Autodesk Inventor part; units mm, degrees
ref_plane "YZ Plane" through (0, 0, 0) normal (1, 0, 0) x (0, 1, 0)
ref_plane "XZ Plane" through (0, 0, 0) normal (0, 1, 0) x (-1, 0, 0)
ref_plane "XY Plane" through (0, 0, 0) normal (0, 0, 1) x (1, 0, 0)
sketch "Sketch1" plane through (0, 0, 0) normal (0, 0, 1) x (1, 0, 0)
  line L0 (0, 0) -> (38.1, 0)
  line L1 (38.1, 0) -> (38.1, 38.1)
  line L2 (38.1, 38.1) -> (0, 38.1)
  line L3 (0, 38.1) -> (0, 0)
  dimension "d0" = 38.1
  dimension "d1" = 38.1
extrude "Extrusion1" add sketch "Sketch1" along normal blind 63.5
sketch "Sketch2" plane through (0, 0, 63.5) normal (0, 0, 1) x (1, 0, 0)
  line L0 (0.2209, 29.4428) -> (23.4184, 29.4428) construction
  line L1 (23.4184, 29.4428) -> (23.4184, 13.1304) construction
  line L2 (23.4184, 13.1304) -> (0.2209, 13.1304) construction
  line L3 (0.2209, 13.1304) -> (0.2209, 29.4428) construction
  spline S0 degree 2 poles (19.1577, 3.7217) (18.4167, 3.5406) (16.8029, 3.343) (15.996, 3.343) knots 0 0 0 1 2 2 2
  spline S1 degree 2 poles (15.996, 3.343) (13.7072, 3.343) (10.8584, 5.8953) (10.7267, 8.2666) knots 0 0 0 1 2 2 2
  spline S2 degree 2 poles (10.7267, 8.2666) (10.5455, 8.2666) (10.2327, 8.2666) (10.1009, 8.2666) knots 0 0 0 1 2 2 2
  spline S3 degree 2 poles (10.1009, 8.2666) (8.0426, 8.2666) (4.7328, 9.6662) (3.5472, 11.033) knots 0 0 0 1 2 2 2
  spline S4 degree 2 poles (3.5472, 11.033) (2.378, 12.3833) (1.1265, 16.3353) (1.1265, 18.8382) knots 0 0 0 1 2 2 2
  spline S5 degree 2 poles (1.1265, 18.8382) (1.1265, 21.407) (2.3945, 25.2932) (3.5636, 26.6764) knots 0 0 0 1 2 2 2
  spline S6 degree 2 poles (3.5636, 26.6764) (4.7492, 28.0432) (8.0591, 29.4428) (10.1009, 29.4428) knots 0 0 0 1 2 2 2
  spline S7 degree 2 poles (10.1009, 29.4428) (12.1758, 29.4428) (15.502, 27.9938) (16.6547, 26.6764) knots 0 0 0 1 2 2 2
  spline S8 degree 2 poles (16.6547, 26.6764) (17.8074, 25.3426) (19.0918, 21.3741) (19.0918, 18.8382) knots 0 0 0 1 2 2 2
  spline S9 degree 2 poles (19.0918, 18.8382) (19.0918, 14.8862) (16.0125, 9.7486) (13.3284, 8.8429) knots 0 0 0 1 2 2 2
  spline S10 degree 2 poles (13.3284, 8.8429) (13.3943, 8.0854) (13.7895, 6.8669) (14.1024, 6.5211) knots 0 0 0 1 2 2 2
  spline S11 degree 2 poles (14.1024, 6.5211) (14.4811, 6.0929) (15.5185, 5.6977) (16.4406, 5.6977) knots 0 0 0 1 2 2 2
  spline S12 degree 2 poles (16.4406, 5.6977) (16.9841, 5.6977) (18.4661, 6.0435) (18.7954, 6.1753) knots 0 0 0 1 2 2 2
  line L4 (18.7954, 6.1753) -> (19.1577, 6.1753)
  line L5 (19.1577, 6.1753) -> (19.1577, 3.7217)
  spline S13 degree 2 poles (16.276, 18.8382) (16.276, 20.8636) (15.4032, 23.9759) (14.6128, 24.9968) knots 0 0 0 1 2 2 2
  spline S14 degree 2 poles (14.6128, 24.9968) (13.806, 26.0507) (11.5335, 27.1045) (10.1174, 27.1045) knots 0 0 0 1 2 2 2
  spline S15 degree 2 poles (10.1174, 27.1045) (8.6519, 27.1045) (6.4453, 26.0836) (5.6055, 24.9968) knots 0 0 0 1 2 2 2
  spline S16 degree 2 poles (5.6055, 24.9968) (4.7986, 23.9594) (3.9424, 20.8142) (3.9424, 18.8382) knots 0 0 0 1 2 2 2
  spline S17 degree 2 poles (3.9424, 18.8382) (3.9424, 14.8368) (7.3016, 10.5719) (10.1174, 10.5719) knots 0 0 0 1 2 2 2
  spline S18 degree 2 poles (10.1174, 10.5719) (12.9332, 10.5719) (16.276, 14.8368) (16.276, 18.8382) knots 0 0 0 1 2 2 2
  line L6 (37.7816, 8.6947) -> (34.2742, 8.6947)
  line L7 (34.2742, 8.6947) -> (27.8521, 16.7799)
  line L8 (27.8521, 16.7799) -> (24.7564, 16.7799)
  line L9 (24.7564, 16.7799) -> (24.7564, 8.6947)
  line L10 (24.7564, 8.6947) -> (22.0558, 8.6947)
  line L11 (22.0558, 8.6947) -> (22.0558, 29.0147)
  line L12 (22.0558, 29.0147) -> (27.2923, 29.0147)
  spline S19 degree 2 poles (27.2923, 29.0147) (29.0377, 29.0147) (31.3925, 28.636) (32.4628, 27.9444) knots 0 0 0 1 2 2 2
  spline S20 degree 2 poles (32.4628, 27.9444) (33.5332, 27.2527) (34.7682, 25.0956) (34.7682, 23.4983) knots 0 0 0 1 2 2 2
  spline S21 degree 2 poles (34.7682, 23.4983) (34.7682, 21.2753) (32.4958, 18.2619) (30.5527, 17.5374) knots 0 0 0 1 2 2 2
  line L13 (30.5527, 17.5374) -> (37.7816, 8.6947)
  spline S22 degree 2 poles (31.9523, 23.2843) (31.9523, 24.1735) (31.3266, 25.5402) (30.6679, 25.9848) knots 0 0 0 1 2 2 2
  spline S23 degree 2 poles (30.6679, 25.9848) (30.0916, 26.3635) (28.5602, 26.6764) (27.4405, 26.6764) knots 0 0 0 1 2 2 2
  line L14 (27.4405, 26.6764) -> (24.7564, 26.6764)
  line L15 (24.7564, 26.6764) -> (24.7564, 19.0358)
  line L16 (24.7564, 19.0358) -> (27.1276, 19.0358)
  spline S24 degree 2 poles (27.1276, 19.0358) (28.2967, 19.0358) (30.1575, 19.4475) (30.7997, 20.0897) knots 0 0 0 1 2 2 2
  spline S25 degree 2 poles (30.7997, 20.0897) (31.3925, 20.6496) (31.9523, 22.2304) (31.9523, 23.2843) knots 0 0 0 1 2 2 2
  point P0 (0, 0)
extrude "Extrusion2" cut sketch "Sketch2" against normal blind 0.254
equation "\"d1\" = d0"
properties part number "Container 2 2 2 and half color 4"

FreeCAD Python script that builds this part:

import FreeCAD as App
import Part
import Sketcher
Q = App.Units.Quantity


def add_polygon(sketch, points):
    """Adds a closed chain of lines whose ends are joined by coincident constraints."""
    first, n = sketch.GeometryCount, len(points)
    for a, b in zip(points, points[1:] + points[:1]):
        sketch.addGeometry(Part.LineSegment(App.Vector(*a, 0), App.Vector(*b, 0)), False)
    for i in range(n):
        sketch.addConstraint(Sketcher.Constraint("Coincident", first + i, 2, first + (i + 1) % n, 1))

doc = App.newDocument("Part")
params = doc.addObject("Spreadsheet::Sheet", "Params")
for row, (alias, value) in enumerate([
    ("sketch1_width", "1.5 in"),
    ("pad1_length", "2.5 in"),
    ("sketch2_height", "0.8 in"),
    ("pocket1_length", "0.01 in"),
], start=1):
    params.set(f"A{row}", alias)
    params.set(f"B{row}", "=" + value)
    params.setAlias(f"B{row}", alias)

body = doc.addObject("PartDesign::Body", "Body")

# Sketch on XY plane
sketch1 = doc.addObject("Sketcher::SketchObject", "Sketch")
body.addObject(sketch1)
sketch1.AttachmentSupport = (doc.XY_Plane, [""])
sketch1.MapMode = "FlatFace"
add_polygon(sketch1, [(0, 38.1), (0, 0), (38.1, 0), (38.1, 38.1)])  # lines 0-3
sketch1.addConstraint([
    Sketcher.Constraint("Vertical", 0),
    Sketcher.Constraint("Horizontal", 1),
    Sketcher.Constraint("Vertical", 2),
    Sketcher.Constraint("Horizontal", 3),
    Sketcher.Constraint("Coincident", 0, 2, -1, 1),
    Sketcher.Constraint("Equal", 3, 0),
    Sketcher.Constraint("DistanceX", 1, 1, 1, 2, Q("1.5 in")),
])
sketch1.setExpression("Constraints[10]", "Params.sketch1_width")
pad1 = doc.addObject("PartDesign::Pad", "Pad")
body.addObject(pad1)
pad1.Profile = sketch1
pad1.setExpression("Length", "Params.pad1_length")

# Sketch on XY plane
sketch2 = doc.addObject("Sketcher::SketchObject", "Sketch001")
body.addObject(sketch2)
sketch2.AttachmentSupport = (doc.XY_Plane, [""])
sketch2.MapMode = "FlatFace"
sketch2.AttachmentOffset = App.Placement(App.Vector(0, 0, 2.5 * 25.4), App.Rotation())
sketch2.addGeometry([
    Part.BSplineCurve([App.Vector(19.1577, 3.7217, 0), App.Vector(18.4167, 3.5406, 0), App.Vector(16.8029, 3.343, 0), App.Vector(15.996, 3.343, 0)], [3, 1, 3], [0, 1, 2], False, 2, [1, 1, 1, 1], False),  # 0
    Part.LineSegment(App.Vector(19.1577, 3.7217, 0), App.Vector(19.1577, 6.1753, 0)),  # 1
    Part.LineSegment(App.Vector(19.1577, 6.1753, 0), App.Vector(18.7954, 6.1753, 0)),  # 2
    Part.BSplineCurve([App.Vector(16.4406, 5.6977, 0), App.Vector(16.9841, 5.6977, 0), App.Vector(18.4661, 6.0435, 0), App.Vector(18.7954, 6.1753, 0)], [3, 1, 3], [0, 1, 2], False, 2, [1, 1, 1, 1], False),  # 3
    Part.BSplineCurve([App.Vector(14.1024, 6.5211, 0), App.Vector(14.4811, 6.0929, 0), App.Vector(15.5185, 5.6977, 0), App.Vector(16.4406, 5.6977, 0)], [3, 1, 3], [0, 1, 2], False, 2, [1, 1, 1, 1], False),  # 4
    Part.BSplineCurve([App.Vector(13.3284, 8.8429, 0), App.Vector(13.3943, 8.0854, 0), App.Vector(13.7895, 6.8669, 0), App.Vector(14.1024, 6.5211, 0)], [3, 1, 3], [0, 1, 2], False, 2, [1, 1, 1, 1], False),  # 5
    Part.BSplineCurve([App.Vector(19.0918, 18.8382, 0), App.Vector(19.0918, 14.8862, 0), App.Vector(16.0125, 9.7486, 0), App.Vector(13.3284, 8.8429, 0)], [3, 1, 3], [0, 1, 2], False, 2, [1, 1, 1, 1], False),  # 6
    Part.BSplineCurve([App.Vector(16.6547, 26.6764, 0), App.Vector(17.8074, 25.3426, 0), App.Vector(19.0918, 21.3741, 0), App.Vector(19.0918, 18.8382, 0)], [3, 1, 3], [0, 1, 2], False, 2, [1, 1, 1, 1], False),  # 7
    Part.BSplineCurve([App.Vector(10.1009, 29.4428, 0), App.Vector(12.1758, 29.4428, 0), App.Vector(15.502, 27.9938, 0), App.Vector(16.6547, 26.6764, 0)], [3, 1, 3], [0, 1, 2], False, 2, [1, 1, 1, 1], False),  # 8
    Part.BSplineCurve([App.Vector(3.5636, 26.6764, 0), App.Vector(4.7492, 28.0432, 0), App.Vector(8.0591, 29.4428, 0), App.Vector(10.1009, 29.4428, 0)], [3, 1, 3], [0, 1, 2], False, 2, [1, 1, 1, 1], False),  # 9
    Part.BSplineCurve([App.Vector(1.1265, 18.8382, 0), App.Vector(1.1265, 21.407, 0), App.Vector(2.3945, 25.2932, 0), App.Vector(3.5636, 26.6764, 0)], [3, 1, 3], [0, 1, 2], False, 2, [1, 1, 1, 1], False),  # 10
    Part.BSplineCurve([App.Vector(3.5472, 11.033, 0), App.Vector(2.378, 12.3833, 0), App.Vector(1.1265, 16.3353, 0), App.Vector(1.1265, 18.8382, 0)], [3, 1, 3], [0, 1, 2], False, 2, [1, 1, 1, 1], False),  # 11
    Part.BSplineCurve([App.Vector(10.1009, 8.2666, 0), App.Vector(8.0426, 8.2666, 0), App.Vector(4.7328, 9.6662, 0), App.Vector(3.5472, 11.033, 0)], [3, 1, 3], [0, 1, 2], False, 2, [1, 1, 1, 1], False),  # 12
    Part.BSplineCurve([App.Vector(10.7267, 8.2666, 0), App.Vector(10.5455, 8.2666, 0), App.Vector(10.2327, 8.2666, 0), App.Vector(10.1009, 8.2666, 0)], [3, 1, 3], [0, 1, 2], False, 2, [1, 1, 1, 1], False),  # 13
    Part.BSplineCurve([App.Vector(15.996, 3.343, 0), App.Vector(13.7072, 3.343, 0), App.Vector(10.8584, 5.8953, 0), App.Vector(10.7267, 8.2666, 0)], [3, 1, 3], [0, 1, 2], False, 2, [1, 1, 1, 1], False),  # 14
    Part.BSplineCurve([App.Vector(16.276, 18.8382, 0), App.Vector(16.276, 20.8636, 0), App.Vector(15.4032, 23.9759, 0), App.Vector(14.6128, 24.9968, 0)], [3, 1, 3], [0, 1, 2], False, 2, [1, 1, 1, 1], False),  # 15
    Part.BSplineCurve([App.Vector(10.1174, 10.5719, 0), App.Vector(12.9332, 10.5719, 0), App.Vector(16.276, 14.8368, 0), App.Vector(16.276, 18.8382, 0)], [3, 1, 3], [0, 1, 2], False, 2, [1, 1, 1, 1], False),  # 16
    Part.BSplineCurve([App.Vector(3.9424, 18.8382, 0), App.Vector(3.9424, 14.8368, 0), App.Vector(7.3016, 10.5719, 0), App.Vector(10.1174, 10.5719, 0)], [3, 1, 3], [0, 1, 2], False, 2, [1, 1, 1, 1], False),  # 17
    Part.BSplineCurve([App.Vector(5.6055, 24.9968, 0), App.Vector(4.7986, 23.9594, 0), App.Vector(3.9424, 20.8142, 0), App.Vector(3.9424, 18.8382, 0)], [3, 1, 3], [0, 1, 2], False, 2, [1, 1, 1, 1], False),  # 18
    Part.BSplineCurve([App.Vector(10.1174, 27.1045, 0), App.Vector(8.6519, 27.1045, 0), App.Vector(6.4453, 26.0836, 0), App.Vector(5.6055, 24.9968, 0)], [3, 1, 3], [0, 1, 2], False, 2, [1, 1, 1, 1], False),  # 19
    Part.BSplineCurve([App.Vector(14.6128, 24.9968, 0), App.Vector(13.806, 26.0507, 0), App.Vector(11.5335, 27.1045, 0), App.Vector(10.1174, 27.1045, 0)], [3, 1, 3], [0, 1, 2], False, 2, [1, 1, 1, 1], False),  # 20
    Part.LineSegment(App.Vector(34.2742, 8.6947, 0), App.Vector(37.7816, 8.6947, 0)),  # 21
    Part.LineSegment(App.Vector(37.7816, 8.6947, 0), App.Vector(30.5527, 17.5374, 0)),  # 22
    Part.BSplineCurve([App.Vector(34.7682, 23.4983, 0), App.Vector(34.7682, 21.2753, 0), App.Vector(32.4958, 18.2619, 0), App.Vector(30.5527, 17.5374, 0)], [3, 1, 3], [0, 1, 2], False, 2, [1, 1, 1, 1], False),  # 23
    Part.BSplineCurve([App.Vector(32.4628, 27.9444, 0), App.Vector(33.5332, 27.2527, 0), App.Vector(34.7682, 25.0956, 0), App.Vector(34.7682, 23.4983, 0)], [3, 1, 3], [0, 1, 2], False, 2, [1, 1, 1, 1], False),  # 24
    Part.BSplineCurve([App.Vector(27.2923, 29.0147, 0), App.Vector(29.0377, 29.0147, 0), App.Vector(31.3925, 28.636, 0), App.Vector(32.4628, 27.9444, 0)], [3, 1, 3], [0, 1, 2], False, 2, [1, 1, 1, 1], False),  # 25
    Part.LineSegment(App.Vector(27.2923, 29.0147, 0), App.Vector(22.0558, 29.0147, 0)),  # 26
    Part.LineSegment(App.Vector(22.0558, 29.0147, 0), App.Vector(22.0558, 8.6947, 0)),  # 27
    Part.LineSegment(App.Vector(22.0558, 8.6947, 0), App.Vector(24.7564, 8.6947, 0)),  # 28
    Part.LineSegment(App.Vector(24.7564, 8.6947, 0), App.Vector(24.7564, 16.7799, 0)),  # 29
    Part.LineSegment(App.Vector(24.7564, 16.7799, 0), App.Vector(27.8521, 16.7799, 0)),  # 30
    Part.LineSegment(App.Vector(27.8521, 16.7799, 0), App.Vector(34.2742, 8.6947, 0)),  # 31
    Part.BSplineCurve([App.Vector(31.9523, 23.2843, 0), App.Vector(31.9523, 24.1735, 0), App.Vector(31.3266, 25.5402, 0), App.Vector(30.6679, 25.9848, 0)], [3, 1, 3], [0, 1, 2], False, 2, [1, 1, 1, 1], False),  # 32
    Part.BSplineCurve([App.Vector(30.7997, 20.0897, 0), App.Vector(31.3925, 20.6496, 0), App.Vector(31.9523, 22.2304, 0), App.Vector(31.9523, 23.2843, 0)], [3, 1, 3], [0, 1, 2], False, 2, [1, 1, 1, 1], False),  # 33
    Part.BSplineCurve([App.Vector(27.1276, 19.0358, 0), App.Vector(28.2967, 19.0358, 0), App.Vector(30.1575, 19.4475, 0), App.Vector(30.7997, 20.0897, 0)], [3, 1, 3], [0, 1, 2], False, 2, [1, 1, 1, 1], False),  # 34
    Part.LineSegment(App.Vector(27.1276, 19.0358, 0), App.Vector(24.7564, 19.0358, 0)),  # 35
    Part.LineSegment(App.Vector(24.7564, 19.0358, 0), App.Vector(24.7564, 26.6764, 0)),  # 36
    Part.LineSegment(App.Vector(24.7564, 26.6764, 0), App.Vector(27.4405, 26.6764, 0)),  # 37
    Part.BSplineCurve([App.Vector(30.6679, 25.9848, 0), App.Vector(30.0916, 26.3635, 0), App.Vector(28.5602, 26.6764, 0), App.Vector(27.4405, 26.6764, 0)], [3, 1, 3], [0, 1, 2], False, 2, [1, 1, 1, 1], False),  # 38
], False)
sketch2.addConstraint([
    Sketcher.Constraint("Block", 0),
    Sketcher.Constraint("Block", 3),
    Sketcher.Constraint("Block", 4),
    Sketcher.Constraint("Block", 5),
    Sketcher.Constraint("Block", 6),
    Sketcher.Constraint("Block", 7),
    Sketcher.Constraint("Block", 8),
    Sketcher.Constraint("Block", 9),
    Sketcher.Constraint("Block", 10),
    Sketcher.Constraint("Block", 11),
    Sketcher.Constraint("Block", 12),
    Sketcher.Constraint("Block", 13),
    Sketcher.Constraint("Block", 14),
    Sketcher.Constraint("Block", 15),
    Sketcher.Constraint("Block", 16),
    Sketcher.Constraint("Block", 17),
    Sketcher.Constraint("Block", 18),
    Sketcher.Constraint("Block", 19),
    Sketcher.Constraint("Block", 20),
    Sketcher.Constraint("Block", 23),
    Sketcher.Constraint("Block", 24),
    Sketcher.Constraint("Block", 25),
    Sketcher.Constraint("Block", 32),
    Sketcher.Constraint("Block", 33),
    Sketcher.Constraint("Block", 34),
    Sketcher.Constraint("Block", 38),
    Sketcher.Constraint("Coincident", 0, 1, 1, 1),
    Sketcher.Constraint("Coincident", 1, 2, 2, 1),
    Sketcher.Constraint("Coincident", 2, 2, 3, 2),
    Sketcher.Constraint("Coincident", 21, 2, 22, 1),
    Sketcher.Constraint("Coincident", 22, 2, 23, 2),
    Sketcher.Constraint("Coincident", 25, 1, 26, 1),
    Sketcher.Constraint("Coincident", 26, 2, 27, 1),
    Sketcher.Constraint("Coincident", 27, 2, 28, 1),
    Sketcher.Constraint("Coincident", 28, 2, 29, 1),
    Sketcher.Constraint("Coincident", 29, 2, 30, 1),
    Sketcher.Constraint("Coincident", 30, 2, 31, 1),
    Sketcher.Constraint("Coincident", 31, 2, 21, 1),
    Sketcher.Constraint("Coincident", 34, 1, 35, 1),
    Sketcher.Constraint("Coincident", 35, 2, 36, 1),
    Sketcher.Constraint("Coincident", 36, 2, 37, 1),
    Sketcher.Constraint("Coincident", 37, 2, 38, 2),
    Sketcher.Constraint("Vertical", 1),
    Sketcher.Constraint("Horizontal", 2),
    Sketcher.Constraint("Horizontal", 21),
    Sketcher.Constraint("Horizontal", 26),
    Sketcher.Constraint("Vertical", 27),
    Sketcher.Constraint("Horizontal", 28),
    Sketcher.Constraint("Vertical", 29),
    Sketcher.Constraint("Horizontal", 30),
    Sketcher.Constraint("Horizontal", 35),
    Sketcher.Constraint("Vertical", 36),
    Sketcher.Constraint("Horizontal", 37),
    Sketcher.Constraint("Horizontal", 21, 2, 27, 2),
    Sketcher.Constraint("Vertical", 29, 2, 35, 2),
    Sketcher.Constraint("DistanceY", 27, 2, 27, 1, Q("0.8 in")),
    Sketcher.Constraint("Angle", 31, Q("-51.5398 deg")),
    Sketcher.Constraint("DistanceX", 26, 2, 37, 2, Q("0.212 in")),
    Sketcher.Constraint("Distance", 31, Q("0.4065 in")),
    Sketcher.Constraint("DistanceX", 21, 1, 21, 2, 3.5074),
    Sketcher.Constraint("DistanceX", 28, 1, 28, 2, 2.7006),
    Sketcher.Constraint("DistanceX", 30, 1, 30, 2, 3.0957),
])
sketch2.setExpression("Constraints[55]", "Params.sketch2_height")
pocket1 = doc.addObject("PartDesign::Pocket", "Pocket")
body.addObject(pocket1)
pocket1.Profile = sketch2
pocket1.setExpression("Length", "Params.pocket1_length")

doc.recompute()
